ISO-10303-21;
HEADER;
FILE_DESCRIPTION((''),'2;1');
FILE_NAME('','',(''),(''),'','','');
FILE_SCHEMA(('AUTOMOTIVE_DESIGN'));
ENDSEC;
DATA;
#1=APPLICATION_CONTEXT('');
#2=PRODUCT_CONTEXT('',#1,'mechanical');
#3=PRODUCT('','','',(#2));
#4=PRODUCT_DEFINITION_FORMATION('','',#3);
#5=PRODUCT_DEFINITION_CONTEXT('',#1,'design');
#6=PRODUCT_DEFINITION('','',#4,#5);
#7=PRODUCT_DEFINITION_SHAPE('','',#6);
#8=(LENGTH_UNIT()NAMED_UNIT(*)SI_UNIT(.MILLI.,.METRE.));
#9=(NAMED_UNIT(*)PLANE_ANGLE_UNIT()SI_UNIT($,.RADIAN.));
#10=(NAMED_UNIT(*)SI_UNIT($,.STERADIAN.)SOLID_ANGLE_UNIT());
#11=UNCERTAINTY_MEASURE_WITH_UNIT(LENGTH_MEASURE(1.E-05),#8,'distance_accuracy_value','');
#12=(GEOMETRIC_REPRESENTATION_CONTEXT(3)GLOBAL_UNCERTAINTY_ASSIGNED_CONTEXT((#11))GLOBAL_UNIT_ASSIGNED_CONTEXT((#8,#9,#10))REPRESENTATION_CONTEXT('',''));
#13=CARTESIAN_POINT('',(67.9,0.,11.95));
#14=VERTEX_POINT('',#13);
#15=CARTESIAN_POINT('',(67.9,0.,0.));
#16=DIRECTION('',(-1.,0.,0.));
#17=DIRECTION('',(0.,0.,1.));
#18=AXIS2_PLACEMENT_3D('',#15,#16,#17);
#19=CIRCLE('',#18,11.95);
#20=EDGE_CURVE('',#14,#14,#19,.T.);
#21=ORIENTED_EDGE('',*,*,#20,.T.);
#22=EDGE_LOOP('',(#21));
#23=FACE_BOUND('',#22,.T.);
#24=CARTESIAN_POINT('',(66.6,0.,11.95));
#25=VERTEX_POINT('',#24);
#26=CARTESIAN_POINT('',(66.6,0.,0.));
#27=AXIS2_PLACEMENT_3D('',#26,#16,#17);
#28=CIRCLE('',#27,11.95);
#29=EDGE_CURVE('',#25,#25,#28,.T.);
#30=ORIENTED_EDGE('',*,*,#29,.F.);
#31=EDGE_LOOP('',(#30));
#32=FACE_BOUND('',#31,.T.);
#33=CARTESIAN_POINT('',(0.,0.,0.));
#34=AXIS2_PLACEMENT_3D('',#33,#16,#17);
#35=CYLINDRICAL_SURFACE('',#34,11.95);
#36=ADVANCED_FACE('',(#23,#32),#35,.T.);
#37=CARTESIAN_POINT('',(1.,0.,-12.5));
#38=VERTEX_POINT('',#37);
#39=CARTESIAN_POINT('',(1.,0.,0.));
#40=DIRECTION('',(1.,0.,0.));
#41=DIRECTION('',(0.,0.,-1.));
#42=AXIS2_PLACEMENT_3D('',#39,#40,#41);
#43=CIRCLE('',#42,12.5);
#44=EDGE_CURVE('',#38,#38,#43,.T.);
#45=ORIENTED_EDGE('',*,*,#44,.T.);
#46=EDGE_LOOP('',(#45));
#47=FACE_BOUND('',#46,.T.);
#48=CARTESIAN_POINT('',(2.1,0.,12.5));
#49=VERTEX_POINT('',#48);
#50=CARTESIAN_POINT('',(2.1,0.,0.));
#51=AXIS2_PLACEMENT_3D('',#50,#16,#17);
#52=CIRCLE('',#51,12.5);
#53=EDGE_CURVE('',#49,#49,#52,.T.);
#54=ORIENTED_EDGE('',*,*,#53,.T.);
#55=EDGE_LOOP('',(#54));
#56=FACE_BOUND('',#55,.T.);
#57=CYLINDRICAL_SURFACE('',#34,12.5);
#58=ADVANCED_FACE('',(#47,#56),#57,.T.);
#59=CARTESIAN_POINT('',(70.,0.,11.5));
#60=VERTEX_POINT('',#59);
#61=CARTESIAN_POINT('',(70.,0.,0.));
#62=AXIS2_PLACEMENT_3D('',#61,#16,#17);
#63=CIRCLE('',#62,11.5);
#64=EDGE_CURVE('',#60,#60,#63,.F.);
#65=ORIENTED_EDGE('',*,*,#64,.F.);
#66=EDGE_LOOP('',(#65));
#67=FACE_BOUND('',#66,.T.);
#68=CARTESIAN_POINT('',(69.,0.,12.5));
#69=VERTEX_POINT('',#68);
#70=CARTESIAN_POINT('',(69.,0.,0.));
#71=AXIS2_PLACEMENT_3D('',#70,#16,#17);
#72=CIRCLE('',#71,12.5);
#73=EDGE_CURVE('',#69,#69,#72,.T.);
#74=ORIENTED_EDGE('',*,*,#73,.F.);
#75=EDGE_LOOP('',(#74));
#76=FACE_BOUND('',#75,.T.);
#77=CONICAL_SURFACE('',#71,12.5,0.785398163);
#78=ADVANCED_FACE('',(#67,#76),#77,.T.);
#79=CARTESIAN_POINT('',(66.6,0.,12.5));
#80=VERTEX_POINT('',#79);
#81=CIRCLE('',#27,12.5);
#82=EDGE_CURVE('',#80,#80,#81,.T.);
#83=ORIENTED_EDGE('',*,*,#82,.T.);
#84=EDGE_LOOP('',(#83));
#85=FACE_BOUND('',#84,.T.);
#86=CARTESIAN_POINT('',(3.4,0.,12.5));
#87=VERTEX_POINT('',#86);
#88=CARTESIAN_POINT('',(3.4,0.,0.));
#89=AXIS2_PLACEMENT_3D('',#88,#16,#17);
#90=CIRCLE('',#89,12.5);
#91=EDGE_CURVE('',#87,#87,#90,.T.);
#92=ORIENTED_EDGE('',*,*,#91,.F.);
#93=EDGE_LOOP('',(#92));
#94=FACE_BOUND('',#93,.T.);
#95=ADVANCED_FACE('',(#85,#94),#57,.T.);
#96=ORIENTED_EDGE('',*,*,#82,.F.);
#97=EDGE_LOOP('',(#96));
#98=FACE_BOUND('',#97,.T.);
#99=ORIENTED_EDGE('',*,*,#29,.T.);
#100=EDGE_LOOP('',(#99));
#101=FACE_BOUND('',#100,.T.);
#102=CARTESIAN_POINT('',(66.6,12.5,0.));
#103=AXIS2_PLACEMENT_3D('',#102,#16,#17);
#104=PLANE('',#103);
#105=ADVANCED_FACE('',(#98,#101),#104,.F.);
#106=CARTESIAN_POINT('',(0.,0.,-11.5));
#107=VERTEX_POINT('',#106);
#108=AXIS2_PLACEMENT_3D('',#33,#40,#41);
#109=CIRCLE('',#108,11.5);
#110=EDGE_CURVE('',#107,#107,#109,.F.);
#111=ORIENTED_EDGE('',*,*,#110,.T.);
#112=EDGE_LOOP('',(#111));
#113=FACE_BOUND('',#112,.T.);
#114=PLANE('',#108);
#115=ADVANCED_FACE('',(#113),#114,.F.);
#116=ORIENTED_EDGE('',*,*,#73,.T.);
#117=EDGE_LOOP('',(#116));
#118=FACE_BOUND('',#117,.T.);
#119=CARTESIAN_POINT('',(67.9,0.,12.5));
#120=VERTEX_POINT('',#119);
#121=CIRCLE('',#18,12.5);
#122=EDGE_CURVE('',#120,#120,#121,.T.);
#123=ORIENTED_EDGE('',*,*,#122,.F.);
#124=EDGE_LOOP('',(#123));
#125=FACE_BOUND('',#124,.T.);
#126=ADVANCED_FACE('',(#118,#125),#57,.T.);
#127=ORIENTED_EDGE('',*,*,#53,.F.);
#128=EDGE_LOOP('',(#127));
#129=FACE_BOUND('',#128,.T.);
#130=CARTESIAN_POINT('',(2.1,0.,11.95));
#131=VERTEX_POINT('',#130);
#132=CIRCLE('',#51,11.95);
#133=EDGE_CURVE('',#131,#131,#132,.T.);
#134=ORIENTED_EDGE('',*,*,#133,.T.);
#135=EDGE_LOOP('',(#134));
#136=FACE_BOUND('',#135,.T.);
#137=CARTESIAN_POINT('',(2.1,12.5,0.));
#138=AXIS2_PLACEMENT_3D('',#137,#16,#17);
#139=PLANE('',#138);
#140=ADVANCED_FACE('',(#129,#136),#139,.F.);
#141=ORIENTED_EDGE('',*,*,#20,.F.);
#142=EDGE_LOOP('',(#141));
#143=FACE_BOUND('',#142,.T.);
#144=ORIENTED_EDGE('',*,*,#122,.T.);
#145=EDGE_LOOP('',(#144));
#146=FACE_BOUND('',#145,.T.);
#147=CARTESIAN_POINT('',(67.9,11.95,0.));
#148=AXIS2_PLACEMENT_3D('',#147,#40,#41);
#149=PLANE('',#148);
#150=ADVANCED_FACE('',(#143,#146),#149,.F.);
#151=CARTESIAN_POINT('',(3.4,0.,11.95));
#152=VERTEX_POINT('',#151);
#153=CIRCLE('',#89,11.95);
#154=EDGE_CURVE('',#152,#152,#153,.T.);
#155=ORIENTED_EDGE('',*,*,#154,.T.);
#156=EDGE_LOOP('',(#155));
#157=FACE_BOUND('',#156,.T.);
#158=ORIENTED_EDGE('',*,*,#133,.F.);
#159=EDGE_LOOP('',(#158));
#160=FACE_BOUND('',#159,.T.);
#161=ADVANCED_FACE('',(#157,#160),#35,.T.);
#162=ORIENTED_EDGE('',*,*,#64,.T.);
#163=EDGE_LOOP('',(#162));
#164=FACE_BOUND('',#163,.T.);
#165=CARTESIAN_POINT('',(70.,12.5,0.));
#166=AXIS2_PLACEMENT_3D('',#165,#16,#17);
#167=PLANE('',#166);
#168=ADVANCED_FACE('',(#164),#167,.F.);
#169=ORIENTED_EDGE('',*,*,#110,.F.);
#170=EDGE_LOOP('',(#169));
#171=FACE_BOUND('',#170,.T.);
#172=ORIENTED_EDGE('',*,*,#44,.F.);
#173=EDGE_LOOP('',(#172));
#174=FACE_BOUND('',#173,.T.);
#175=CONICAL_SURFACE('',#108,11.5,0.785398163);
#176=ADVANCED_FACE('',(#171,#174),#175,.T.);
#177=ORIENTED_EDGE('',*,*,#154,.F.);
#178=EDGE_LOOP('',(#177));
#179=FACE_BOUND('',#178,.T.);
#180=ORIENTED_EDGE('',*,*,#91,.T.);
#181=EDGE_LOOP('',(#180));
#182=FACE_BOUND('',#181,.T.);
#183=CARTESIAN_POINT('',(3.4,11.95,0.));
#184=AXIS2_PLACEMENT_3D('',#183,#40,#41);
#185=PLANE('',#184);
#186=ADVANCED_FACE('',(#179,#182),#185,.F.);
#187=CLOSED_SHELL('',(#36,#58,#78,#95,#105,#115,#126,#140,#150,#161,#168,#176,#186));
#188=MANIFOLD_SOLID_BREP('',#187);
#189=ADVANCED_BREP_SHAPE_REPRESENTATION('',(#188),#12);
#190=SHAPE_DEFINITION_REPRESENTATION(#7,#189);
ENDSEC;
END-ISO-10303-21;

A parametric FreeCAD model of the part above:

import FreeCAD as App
import Part
import Sketcher


def edges_at(feature, points):
    """Names of the edges that pass closest to the given points."""
    edges = feature.Shape.Edges
    near = lambda p: min(range(len(edges)), key=lambda i: edges[i].distToShape(Part.Vertex(*p))[0])
    return sorted({f"Edge{near(p) + 1}" for p in points})


def add_polygon(sketch, points):
    """Adds a closed chain of lines whose ends are joined by coincident constraints."""
    first, n = sketch.GeometryCount, len(points)
    for a, b in zip(points, points[1:] + points[:1]):
        sketch.addGeometry(Part.LineSegment(App.Vector(*a, 0), App.Vector(*b, 0)), False)
    for i in range(n):
        sketch.addConstraint(Sketcher.Constraint("Coincident", first + i, 2, first + (i + 1) % n, 1))

doc = App.newDocument("Part")
body = doc.addObject("PartDesign::Body", "Body")

# Sketch on XY plane
sketch1 = body.newObject("Sketcher::SketchObject", "Sketch")
sketch1.AttachmentSupport = (doc.getObject("XY_Plane"), [""])
sketch1.MapMode = "FlatFace"
add_polygon(sketch1, [(0, 12.5), (0, 0), (70, 0), (70, 12.5), (67.9, 12.5), (67.9, 11.95), (66.6, 11.95), (66.6, 12.5), (3.4, 12.5), (3.4, 11.95), (2.1, 11.95), (2.1, 12.5)])  # lines 0-11
sketch1.addConstraint(Sketcher.Constraint("Vertical", 0))
sketch1.addConstraint(Sketcher.Constraint("Horizontal", 1))
sketch1.addConstraint(Sketcher.Constraint("Vertical", 2))
sketch1.addConstraint(Sketcher.Constraint("Horizontal", 3))
sketch1.addConstraint(Sketcher.Constraint("Vertical", 4))
sketch1.addConstraint(Sketcher.Constraint("Horizontal", 5))
sketch1.addConstraint(Sketcher.Constraint("Vertical", 6))
sketch1.addConstraint(Sketcher.Constraint("Horizontal", 7))
sketch1.addConstraint(Sketcher.Constraint("Vertical", 8))
sketch1.addConstraint(Sketcher.Constraint("Horizontal", 9))
sketch1.addConstraint(Sketcher.Constraint("Vertical", 10))
sketch1.addConstraint(Sketcher.Constraint("Horizontal", 11))
sketch1.addConstraint(Sketcher.Constraint("Coincident", 0, 2, -1, 1))
sketch1.addConstraint(Sketcher.Constraint("Horizontal", 3, 2, 6, 2))
sketch1.addConstraint(Sketcher.Constraint("Horizontal", 5, 2, 8, 2))
sketch1.addConstraint(Sketcher.Constraint("Horizontal", 7, 2, 10, 2))
sketch1.addConstraint(Sketcher.Constraint("Equal", 5, 9))
sketch1.addConstraint(Sketcher.Constraint("Equal", 3, 11))
sketch1.addConstraint(Sketcher.Constraint("DistanceX", 1, 1, 1, 2, 70.0))
sketch1.addConstraint(Sketcher.Constraint("DistanceX", 3, 2, 3, 1, 2.1))
sketch1.addConstraint(Sketcher.Constraint("DistanceX", 5, 2, 5, 1, 1.3))
sketch1.addConstraint(Sketcher.Constraint("DistanceY", 0, 2, 0, 1, 12.5))
sketch1.addConstraint(Sketcher.Constraint("DistanceY", 4, 2, 4, 1, 0.55))
revolution = body.newObject("PartDesign::Revolution", "Revolution")
revolution.Profile = sketch1
revolution.ReferenceAxis = (sketch1, ["H_Axis"])
revolution.Angle = 360
doc.recompute()

chamfer = body.newObject("PartDesign::Chamfer", "Chamfer")
chamfer.Base = (revolution, edges_at(revolution, [(0, 0, -12.5), (70, 0, -12.5)]))
chamfer.Size = 1

doc.recompute()
